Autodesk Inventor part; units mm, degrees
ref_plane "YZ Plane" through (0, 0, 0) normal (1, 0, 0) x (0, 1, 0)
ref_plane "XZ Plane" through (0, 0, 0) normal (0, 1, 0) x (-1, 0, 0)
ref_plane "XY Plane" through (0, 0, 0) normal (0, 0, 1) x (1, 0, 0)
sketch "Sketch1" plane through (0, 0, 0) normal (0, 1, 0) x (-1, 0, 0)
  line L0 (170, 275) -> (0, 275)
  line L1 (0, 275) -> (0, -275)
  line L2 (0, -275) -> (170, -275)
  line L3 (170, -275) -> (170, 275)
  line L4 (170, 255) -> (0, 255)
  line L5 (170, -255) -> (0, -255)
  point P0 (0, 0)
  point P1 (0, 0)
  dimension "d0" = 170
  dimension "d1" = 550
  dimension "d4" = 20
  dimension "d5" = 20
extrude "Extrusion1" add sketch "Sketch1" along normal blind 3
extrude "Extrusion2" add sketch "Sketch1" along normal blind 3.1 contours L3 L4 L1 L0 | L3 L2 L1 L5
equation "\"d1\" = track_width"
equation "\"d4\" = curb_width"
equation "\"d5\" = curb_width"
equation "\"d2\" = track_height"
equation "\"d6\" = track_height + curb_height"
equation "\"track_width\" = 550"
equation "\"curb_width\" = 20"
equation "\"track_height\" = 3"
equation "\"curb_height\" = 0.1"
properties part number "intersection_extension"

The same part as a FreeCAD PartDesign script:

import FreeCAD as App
import Part
import Sketcher
from FreeCAD import Vector
Q = App.Units.Quantity


def add_polygon(sketch, points):
    """Adds a closed chain of lines whose ends are joined by coincident constraints."""
    first, n = sketch.GeometryCount, len(points)
    for a, b in zip(points, points[1:] + points[:1]):
        sketch.addGeometry(Part.LineSegment(App.Vector(*a, 0), App.Vector(*b, 0)), False)
    for i in range(n):
        sketch.addConstraint(Sketcher.Constraint("Coincident", first + i, 2, first + (i + 1) % n, 1))

doc = App.newDocument("Part")
body = doc.addObject("PartDesign::Body", "Body")

sketch1 = body.newObject("Sketcher::SketchObject", "Sketch")
sketch1.AttachmentSupport = (doc.getObject("XZ_Plane"), [""])
sketch1.MapMode = "FlatFace"
add_polygon(sketch1, [(-170, 275), (0, 275), (0, -275), (-170, -275)])
sketch1.addConstraint([
    Sketcher.Constraint("Horizontal", 0),
    Sketcher.Constraint("Vertical", 1),
    Sketcher.Constraint("Horizontal", 2),
    Sketcher.Constraint("Vertical", 3),
    Sketcher.Constraint("Symmetric", 0, 2, 1, 2, -1, 1),
    Sketcher.Constraint("DistanceX", 0, 1, 0, 2, Q("170 mm")),
    Sketcher.Constraint("DistanceY", 1, 2, 1, 1, Q("550 mm")),
])
pad1 = body.newObject("PartDesign::Pad", "Pad")
pad1.Profile = sketch1
pad1.Length = 3
pad1.Reversed = True

sketch2 = body.newObject("Sketcher::SketchObject", "Sketch001")
sketch2.AttachmentSupport = (doc.getObject("XZ_Plane"), [""])
sketch2.MapMode = "FlatFace"
add_polygon(sketch2, [(-170, 255), (-170, 275), (0, 275), (0, 255)])
add_polygon(sketch2, [(-170, -275), (-170, -255), (0, -255), (0, -275)])
sketch2.addConstraint([
    Sketcher.Constraint("Vertical", 0),
    Sketcher.Constraint("Horizontal", 1),
    Sketcher.Constraint("Vertical", 2),
    Sketcher.Constraint("Horizontal", 3),
    Sketcher.Constraint("Vertical", 4),
    Sketcher.Constraint("Horizontal", 5),
    Sketcher.Constraint("Vertical", 6),
    Sketcher.Constraint("Horizontal", 7),
    Sketcher.Constraint("Symmetric", 2, 2, 5, 2, -1, 1),
    Sketcher.Constraint("Symmetric", 1, 2, 6, 2, -1),
    Sketcher.Constraint("Vertical", 3, 2, 4, 2),
    Sketcher.Constraint("DistanceX", 1, 1, 1, 2, Q("170 mm")),
    Sketcher.Constraint("DistanceY", 0, 1, 0, 2, Q("20 mm")),
    Sketcher.Constraint("DistanceY", 6, 2, 1, 2, Q("550 mm")),
])
pad2 = body.newObject("PartDesign::Pad", "Pad001")
pad2.Profile = sketch2
pad2.Length = 3.1
pad2.Reversed = True

doc.recompute()
